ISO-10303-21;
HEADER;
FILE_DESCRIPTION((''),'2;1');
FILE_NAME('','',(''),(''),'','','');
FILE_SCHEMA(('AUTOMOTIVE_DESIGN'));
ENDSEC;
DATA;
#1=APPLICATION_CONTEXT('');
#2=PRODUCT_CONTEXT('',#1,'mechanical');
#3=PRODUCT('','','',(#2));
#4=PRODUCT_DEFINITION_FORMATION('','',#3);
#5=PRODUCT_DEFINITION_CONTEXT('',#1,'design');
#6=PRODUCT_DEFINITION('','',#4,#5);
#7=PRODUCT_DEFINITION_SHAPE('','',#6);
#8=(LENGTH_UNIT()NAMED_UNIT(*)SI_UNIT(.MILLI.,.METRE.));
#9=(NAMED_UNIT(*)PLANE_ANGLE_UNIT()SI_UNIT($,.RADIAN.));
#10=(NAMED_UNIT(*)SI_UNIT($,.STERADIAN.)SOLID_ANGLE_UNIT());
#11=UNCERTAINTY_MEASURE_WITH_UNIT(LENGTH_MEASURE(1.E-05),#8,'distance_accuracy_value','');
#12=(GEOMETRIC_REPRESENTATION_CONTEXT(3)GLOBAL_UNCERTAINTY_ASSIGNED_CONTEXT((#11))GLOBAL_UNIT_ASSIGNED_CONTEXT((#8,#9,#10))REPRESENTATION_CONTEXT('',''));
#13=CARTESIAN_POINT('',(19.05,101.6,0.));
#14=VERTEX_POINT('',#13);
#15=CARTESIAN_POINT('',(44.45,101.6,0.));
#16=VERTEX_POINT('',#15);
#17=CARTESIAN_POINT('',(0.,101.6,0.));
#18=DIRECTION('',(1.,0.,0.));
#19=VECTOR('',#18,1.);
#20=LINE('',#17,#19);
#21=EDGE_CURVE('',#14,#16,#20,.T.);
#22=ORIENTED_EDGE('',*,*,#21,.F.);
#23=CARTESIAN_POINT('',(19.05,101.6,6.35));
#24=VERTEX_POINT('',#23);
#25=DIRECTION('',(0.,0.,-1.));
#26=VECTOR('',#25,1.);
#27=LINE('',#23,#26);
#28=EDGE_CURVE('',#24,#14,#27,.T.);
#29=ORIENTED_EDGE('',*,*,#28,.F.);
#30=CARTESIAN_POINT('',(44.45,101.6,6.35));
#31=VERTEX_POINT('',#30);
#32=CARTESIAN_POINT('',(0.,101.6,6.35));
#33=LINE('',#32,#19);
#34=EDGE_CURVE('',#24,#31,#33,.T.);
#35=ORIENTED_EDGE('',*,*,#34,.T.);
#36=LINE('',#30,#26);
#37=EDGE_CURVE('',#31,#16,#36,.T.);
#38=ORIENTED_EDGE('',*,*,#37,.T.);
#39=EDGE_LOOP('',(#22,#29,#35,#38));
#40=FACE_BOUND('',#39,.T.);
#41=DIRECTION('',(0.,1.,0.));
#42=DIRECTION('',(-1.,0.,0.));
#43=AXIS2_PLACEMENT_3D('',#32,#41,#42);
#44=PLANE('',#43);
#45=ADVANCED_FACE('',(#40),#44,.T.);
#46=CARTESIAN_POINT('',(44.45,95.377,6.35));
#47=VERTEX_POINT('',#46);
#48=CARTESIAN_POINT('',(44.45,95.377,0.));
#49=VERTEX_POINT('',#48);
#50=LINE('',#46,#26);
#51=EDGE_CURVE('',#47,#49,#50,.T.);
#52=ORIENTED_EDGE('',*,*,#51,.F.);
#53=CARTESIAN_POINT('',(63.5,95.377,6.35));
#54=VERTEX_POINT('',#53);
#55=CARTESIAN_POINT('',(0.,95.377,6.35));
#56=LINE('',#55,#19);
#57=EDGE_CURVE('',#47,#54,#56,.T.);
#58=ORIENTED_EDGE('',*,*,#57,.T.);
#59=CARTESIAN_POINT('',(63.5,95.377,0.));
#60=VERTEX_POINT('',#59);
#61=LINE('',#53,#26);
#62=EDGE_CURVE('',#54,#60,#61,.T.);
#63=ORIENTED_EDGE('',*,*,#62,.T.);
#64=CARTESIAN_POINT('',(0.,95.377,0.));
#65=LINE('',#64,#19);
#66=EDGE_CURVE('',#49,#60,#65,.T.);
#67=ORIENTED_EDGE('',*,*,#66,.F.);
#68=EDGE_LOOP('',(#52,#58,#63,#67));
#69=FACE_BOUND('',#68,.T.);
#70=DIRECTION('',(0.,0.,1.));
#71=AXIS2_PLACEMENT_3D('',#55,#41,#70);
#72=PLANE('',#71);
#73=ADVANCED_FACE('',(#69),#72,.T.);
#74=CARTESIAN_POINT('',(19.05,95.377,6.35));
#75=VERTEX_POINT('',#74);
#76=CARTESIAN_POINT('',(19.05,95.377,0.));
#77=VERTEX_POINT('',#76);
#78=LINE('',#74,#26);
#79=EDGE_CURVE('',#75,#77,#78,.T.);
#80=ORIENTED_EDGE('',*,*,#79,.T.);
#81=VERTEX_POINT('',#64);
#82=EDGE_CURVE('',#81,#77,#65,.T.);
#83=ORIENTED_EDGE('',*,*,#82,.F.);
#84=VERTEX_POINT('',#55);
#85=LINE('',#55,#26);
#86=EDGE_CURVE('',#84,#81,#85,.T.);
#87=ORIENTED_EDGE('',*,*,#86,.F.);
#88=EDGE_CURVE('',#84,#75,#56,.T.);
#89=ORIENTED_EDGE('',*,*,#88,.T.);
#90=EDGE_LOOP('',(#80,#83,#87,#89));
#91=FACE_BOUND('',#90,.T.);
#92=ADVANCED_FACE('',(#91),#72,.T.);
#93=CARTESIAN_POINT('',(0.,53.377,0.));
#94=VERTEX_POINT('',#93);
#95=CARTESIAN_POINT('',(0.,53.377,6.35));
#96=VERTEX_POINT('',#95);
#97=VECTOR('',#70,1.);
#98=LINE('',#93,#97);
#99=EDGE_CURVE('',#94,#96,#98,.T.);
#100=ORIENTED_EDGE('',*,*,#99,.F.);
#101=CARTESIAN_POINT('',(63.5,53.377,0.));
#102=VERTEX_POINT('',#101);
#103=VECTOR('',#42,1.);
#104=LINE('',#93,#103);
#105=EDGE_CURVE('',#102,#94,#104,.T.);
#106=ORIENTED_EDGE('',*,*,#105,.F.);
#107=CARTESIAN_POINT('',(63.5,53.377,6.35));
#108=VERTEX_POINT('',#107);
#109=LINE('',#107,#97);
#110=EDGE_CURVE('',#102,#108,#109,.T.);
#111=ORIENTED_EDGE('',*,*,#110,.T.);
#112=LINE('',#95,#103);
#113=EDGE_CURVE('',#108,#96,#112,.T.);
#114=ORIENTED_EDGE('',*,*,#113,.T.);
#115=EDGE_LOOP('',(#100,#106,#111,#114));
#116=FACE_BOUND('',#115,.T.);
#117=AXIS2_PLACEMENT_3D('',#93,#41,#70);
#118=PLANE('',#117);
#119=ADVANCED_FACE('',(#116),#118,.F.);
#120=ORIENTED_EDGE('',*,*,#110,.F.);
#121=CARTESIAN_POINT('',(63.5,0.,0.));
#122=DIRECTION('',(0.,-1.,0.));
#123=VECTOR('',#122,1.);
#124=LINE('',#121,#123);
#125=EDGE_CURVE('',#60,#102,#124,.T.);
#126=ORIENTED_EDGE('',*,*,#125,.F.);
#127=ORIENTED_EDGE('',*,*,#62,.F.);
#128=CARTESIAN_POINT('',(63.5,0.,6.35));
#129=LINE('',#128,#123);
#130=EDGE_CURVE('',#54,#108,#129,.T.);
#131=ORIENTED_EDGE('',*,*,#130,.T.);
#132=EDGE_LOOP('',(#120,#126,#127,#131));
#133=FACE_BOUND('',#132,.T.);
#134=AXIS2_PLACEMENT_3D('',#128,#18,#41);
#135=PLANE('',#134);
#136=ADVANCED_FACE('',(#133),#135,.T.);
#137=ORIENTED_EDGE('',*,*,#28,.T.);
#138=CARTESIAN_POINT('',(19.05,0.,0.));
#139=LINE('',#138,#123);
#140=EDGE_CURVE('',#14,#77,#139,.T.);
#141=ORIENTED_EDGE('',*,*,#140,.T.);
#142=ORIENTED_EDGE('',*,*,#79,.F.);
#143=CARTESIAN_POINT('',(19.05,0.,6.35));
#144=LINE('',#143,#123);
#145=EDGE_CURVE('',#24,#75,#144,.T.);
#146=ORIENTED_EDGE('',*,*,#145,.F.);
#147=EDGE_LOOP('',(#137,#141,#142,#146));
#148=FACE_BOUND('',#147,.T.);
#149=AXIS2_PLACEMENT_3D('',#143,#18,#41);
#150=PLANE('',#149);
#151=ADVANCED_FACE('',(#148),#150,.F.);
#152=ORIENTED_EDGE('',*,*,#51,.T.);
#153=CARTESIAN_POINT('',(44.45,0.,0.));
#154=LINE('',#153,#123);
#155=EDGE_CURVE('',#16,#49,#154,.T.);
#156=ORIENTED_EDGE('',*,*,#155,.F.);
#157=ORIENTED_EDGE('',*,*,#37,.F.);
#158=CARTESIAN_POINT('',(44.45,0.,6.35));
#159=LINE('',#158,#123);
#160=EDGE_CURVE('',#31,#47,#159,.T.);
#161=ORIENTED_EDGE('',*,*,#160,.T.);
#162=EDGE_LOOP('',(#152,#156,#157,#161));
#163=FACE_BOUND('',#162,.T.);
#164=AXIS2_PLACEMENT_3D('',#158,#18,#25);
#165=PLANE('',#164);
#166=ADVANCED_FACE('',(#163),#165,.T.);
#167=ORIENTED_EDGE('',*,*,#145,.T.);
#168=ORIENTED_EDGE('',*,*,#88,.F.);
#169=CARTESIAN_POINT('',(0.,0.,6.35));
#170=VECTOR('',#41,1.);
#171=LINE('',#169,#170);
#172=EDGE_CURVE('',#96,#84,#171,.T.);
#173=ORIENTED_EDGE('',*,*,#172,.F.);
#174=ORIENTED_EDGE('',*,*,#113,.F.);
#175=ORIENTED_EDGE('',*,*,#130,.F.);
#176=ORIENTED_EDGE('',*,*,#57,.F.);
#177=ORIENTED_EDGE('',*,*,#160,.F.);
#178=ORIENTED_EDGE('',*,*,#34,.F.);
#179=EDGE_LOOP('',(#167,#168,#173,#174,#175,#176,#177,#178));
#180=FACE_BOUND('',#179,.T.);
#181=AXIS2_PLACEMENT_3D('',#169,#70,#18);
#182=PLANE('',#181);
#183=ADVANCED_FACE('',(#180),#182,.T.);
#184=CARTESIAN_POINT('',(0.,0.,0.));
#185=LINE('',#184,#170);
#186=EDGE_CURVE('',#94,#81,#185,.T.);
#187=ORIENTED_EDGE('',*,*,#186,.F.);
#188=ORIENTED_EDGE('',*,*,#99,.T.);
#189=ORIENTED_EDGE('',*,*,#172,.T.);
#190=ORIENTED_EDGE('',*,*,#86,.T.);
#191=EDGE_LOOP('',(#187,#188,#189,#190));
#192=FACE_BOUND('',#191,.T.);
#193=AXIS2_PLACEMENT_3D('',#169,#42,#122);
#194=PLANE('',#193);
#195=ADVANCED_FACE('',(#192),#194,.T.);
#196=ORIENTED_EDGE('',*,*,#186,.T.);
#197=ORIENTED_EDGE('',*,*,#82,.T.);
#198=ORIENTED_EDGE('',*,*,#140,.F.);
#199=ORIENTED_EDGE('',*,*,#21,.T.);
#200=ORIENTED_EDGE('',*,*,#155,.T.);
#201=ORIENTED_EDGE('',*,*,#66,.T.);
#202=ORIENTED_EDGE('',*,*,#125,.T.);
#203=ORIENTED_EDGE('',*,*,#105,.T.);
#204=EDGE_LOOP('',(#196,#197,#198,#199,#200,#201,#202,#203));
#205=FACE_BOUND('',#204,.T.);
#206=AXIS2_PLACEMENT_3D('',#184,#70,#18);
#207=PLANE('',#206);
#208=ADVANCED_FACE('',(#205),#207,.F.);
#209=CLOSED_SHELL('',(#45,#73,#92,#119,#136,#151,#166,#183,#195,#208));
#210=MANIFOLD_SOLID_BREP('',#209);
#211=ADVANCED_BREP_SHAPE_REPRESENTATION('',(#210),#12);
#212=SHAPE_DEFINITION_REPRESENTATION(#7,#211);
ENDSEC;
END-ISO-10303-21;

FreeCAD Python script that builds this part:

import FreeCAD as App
import Part
import Sketcher
from FreeCAD import Vector
Q = App.Units.Quantity


def add_polygon(sketch, points):
    """Adds a closed chain of lines whose ends are joined by coincident constraints."""
    first, n = sketch.GeometryCount, len(points)
    for a, b in zip(points, points[1:] + points[:1]):
        sketch.addGeometry(Part.LineSegment(App.Vector(*a, 0), App.Vector(*b, 0)), False)
    for i in range(n):
        sketch.addConstraint(Sketcher.Constraint("Coincident", first + i, 2, first + (i + 1) % n, 1))

doc = App.newDocument("Part")
body = doc.addObject("PartDesign::Body", "Body")

# Sketch on XY plane
sketch1 = body.newObject("Sketcher::SketchObject", "Sketch")
sketch1.AttachmentSupport = (doc.getObject("XY_Plane"), [""])
sketch1.MapMode = "FlatFace"
add_polygon(sketch1, [(64, 6), (64, 95), (44, 95), (44, 102), (19, 102), (19, 95), (0, 95), (0, 6), (19, 6), (19, 0), (44, 0), (44, 6)])  # lines 0-11
sketch1.addConstraint([
    Sketcher.Constraint("Vertical", 0),
    Sketcher.Constraint("Horizontal", 1),
    Sketcher.Constraint("Vertical", 2),
    Sketcher.Constraint("Horizontal", 3),
    Sketcher.Constraint("Vertical", 4),
    Sketcher.Constraint("Horizontal", 5),
    Sketcher.Constraint("Vertical", 6),
    Sketcher.Constraint("Horizontal", 7),
    Sketcher.Constraint("Vertical", 8),
    Sketcher.Constraint("Horizontal", 9),
    Sketcher.Constraint("Vertical", 10),
    Sketcher.Constraint("Horizontal", 11),
    Sketcher.Constraint("PointOnObject", 5, 2, -2),
    Sketcher.Constraint("PointOnObject", 8, 2, -1),
    Sketcher.Constraint("Horizontal", 1, 2, 4, 2),
    Sketcher.Constraint("Horizontal", 7, 2, 10, 2),
    Sketcher.Constraint("Vertical", 4, 2, 7, 2),
    Sketcher.Constraint("Vertical", 2, 2, 9, 2),
    Sketcher.Constraint("Equal", 1, 5),
    Sketcher.Constraint("Equal", 4, 8),
    Sketcher.Constraint("DistanceX", 3, 2, 3, 1, Q("1 in")),
    Sketcher.Constraint("DistanceY", -1, 1, 2, 2, Q("4 in")),
    Sketcher.Constraint("DistanceX", 1, 2, 1, 1, Q("0.75 in")),
    Sketcher.Constraint("DistanceY", 0, 1, 0, 2, Q("3.51 in")),
])
pad1 = body.newObject("PartDesign::Pad", "Pad")
pad1.Profile = sketch1
pad1.Length = Q("0.25 in")

# Sketch on XY plane
sketch2 = body.newObject("Sketcher::SketchObject", "Sketch001")
sketch2.AttachmentSupport = (doc.getObject("XY_Plane"), [""])
sketch2.MapMode = "FlatFace"
sketch2.AttachmentOffset = App.Placement(Vector(0, 0, 0.25 * 25.4), App.Rotation())
add_polygon(sketch2, [(0, 53), (0, 0), (64, 0), (64, 53)])  # lines 0-3
sketch2.addConstraint([
    Sketcher.Constraint("Vertical", 0),
    Sketcher.Constraint("Horizontal", 1),
    Sketcher.Constraint("Vertical", 2),
    Sketcher.Constraint("Horizontal", 3),
    Sketcher.Constraint("Coincident", 0, 2, -1, 1),
    Sketcher.Constraint("DistanceY", 0, 2, 0, 1, 53.377),
    Sketcher.Constraint("DistanceX", 1, 1, 1, 2, 63.888253),
])
pocket1 = body.newObject("PartDesign::Pocket", "Pocket")
pocket1.Profile = sketch2
pocket1.Type = "ThroughAll"

doc.recompute()
